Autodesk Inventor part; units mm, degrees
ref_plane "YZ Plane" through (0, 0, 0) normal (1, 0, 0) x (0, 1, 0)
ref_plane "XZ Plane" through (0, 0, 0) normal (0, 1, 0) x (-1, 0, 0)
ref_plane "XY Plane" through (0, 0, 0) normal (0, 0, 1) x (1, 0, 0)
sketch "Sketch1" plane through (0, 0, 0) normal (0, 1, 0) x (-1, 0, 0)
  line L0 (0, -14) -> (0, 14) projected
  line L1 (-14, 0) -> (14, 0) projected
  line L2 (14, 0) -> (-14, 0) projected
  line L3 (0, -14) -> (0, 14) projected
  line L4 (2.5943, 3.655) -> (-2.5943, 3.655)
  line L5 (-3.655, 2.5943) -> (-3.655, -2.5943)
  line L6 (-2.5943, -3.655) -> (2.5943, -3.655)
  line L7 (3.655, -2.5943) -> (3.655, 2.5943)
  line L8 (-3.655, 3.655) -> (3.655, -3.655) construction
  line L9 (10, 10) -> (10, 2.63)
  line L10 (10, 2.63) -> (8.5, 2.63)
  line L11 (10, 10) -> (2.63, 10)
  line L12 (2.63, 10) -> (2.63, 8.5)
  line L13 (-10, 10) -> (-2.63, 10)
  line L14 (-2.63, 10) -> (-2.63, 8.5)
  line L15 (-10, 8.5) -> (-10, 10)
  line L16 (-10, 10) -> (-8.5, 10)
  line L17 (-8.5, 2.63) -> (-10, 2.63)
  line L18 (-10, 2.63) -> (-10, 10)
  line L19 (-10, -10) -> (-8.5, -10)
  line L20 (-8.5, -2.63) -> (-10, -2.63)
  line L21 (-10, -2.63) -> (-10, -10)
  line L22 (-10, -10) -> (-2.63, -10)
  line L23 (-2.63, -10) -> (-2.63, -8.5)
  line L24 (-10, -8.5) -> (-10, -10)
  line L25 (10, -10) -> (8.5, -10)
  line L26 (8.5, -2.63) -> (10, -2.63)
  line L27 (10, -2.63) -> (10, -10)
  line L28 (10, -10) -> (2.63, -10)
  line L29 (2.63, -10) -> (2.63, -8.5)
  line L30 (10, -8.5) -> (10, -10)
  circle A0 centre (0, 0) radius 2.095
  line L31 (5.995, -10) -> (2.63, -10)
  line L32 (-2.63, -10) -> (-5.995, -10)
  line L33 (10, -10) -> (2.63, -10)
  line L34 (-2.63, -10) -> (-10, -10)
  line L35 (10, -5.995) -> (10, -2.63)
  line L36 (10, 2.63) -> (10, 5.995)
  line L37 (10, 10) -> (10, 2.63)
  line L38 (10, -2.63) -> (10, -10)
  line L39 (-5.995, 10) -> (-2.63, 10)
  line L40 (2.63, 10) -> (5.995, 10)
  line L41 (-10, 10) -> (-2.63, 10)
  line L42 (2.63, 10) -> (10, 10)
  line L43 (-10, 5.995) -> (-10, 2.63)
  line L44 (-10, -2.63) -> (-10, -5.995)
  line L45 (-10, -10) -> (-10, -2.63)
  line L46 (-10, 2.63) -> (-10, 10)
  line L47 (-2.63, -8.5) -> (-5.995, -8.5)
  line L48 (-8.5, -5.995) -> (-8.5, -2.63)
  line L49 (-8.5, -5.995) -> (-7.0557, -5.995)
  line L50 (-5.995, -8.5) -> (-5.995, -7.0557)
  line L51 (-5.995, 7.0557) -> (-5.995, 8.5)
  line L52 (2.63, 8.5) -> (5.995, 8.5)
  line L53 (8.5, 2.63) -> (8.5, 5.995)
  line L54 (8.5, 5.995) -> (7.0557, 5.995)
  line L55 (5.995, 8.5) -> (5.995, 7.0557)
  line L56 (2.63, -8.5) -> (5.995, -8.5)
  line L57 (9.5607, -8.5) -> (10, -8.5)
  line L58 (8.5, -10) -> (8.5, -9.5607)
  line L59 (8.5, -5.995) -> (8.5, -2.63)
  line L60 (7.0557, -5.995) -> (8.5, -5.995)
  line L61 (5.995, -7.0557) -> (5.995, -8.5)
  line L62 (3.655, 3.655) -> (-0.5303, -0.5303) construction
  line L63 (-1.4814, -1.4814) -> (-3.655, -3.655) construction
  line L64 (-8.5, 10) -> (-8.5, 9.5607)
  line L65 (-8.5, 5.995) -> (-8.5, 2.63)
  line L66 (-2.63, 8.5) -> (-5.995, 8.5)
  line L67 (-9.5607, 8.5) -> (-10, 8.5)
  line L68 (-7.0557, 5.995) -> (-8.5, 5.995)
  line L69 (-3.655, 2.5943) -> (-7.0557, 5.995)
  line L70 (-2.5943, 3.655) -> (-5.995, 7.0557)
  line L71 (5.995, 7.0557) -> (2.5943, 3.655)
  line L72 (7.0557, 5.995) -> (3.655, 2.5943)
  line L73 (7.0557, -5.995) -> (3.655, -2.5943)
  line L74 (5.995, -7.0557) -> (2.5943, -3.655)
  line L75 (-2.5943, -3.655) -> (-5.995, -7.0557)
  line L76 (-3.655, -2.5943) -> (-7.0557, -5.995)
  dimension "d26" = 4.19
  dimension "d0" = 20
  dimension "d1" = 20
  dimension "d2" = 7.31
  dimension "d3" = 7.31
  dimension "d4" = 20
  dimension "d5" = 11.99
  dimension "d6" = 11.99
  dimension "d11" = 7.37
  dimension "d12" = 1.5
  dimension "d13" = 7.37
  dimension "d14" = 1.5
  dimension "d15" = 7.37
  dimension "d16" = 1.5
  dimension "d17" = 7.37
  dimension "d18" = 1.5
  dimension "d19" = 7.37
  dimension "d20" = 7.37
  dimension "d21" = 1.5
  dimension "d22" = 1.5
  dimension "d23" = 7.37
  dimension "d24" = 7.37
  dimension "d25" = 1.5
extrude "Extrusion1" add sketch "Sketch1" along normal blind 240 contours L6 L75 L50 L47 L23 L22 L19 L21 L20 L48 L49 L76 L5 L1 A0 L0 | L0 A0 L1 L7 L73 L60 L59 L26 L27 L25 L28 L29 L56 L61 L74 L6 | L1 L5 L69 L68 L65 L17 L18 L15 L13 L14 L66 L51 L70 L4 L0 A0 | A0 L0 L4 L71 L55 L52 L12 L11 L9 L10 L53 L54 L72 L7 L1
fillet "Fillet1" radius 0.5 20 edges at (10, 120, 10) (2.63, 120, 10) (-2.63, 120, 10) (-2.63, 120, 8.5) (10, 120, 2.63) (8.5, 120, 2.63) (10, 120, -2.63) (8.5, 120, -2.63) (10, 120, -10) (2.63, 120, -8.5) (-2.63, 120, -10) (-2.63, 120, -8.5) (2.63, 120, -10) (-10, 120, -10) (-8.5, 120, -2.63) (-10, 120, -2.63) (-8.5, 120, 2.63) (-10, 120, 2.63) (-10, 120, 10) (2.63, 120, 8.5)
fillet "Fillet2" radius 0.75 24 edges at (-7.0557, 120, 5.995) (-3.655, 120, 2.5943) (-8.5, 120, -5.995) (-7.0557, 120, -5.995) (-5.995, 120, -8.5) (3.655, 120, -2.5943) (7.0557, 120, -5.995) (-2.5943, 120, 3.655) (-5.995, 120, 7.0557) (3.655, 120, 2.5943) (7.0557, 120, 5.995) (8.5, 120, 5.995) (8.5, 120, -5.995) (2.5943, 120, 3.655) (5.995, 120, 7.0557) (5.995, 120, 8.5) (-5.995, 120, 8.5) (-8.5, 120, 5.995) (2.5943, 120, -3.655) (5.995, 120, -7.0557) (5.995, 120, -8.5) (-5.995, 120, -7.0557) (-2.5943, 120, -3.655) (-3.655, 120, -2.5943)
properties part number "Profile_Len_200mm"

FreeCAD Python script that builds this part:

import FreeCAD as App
import Part
import Sketcher
from FreeCAD import Vector
Q = App.Units.Quantity


def edges_at(feature, points):
    """Names of the edges that pass closest to the given points."""
    edges = feature.Shape.Edges
    near = lambda p: min(range(len(edges)), key=lambda i: edges[i].distToShape(Part.Vertex(*p))[0])
    return sorted({f"Edge{near(p) + 1}" for p in points})

doc = App.newDocument("Part")
body = doc.addObject("PartDesign::Body", "Body")

sketch1 = body.newObject("Sketcher::SketchObject", "Sketch")
sketch1.AttachmentSupport = (doc.getObject("XZ_Plane"), [""])
sketch1.MapMode = "FlatFace"
sketch1.addGeometry([
    Part.LineSegment(Vector(2.6, -3.7, 0), Vector(-2.6, -3.7, 0)),
    Part.LineSegment(Vector(-2.6, -3.7, 0), Vector(-6, -7.1, 0)),
    Part.LineSegment(Vector(-6, -7.1, 0), Vector(-6, -8.5, 0)),
    Part.LineSegment(Vector(-6, -8.5, 0), Vector(-2.6, -8.5, 0)),
    Part.LineSegment(Vector(-2.6, -8.5, 0), Vector(-2.6, -10, 0)),
    Part.LineSegment(Vector(-2.6, -10, 0), Vector(-10, -10, 0)),
    Part.LineSegment(Vector(-10, -10, 0), Vector(-10, -2.6, 0)),
    Part.LineSegment(Vector(-10, -2.6, 0), Vector(-8.5, -2.6, 0)),
    Part.LineSegment(Vector(-8.5, -2.6, 0), Vector(-8.5, -6, 0)),
    Part.LineSegment(Vector(-8.5, -6, 0), Vector(-7.1, -6, 0)),
    Part.LineSegment(Vector(-7.1, -6, 0), Vector(-3.7, -2.6, 0)),
    Part.LineSegment(Vector(-3.7, -2.6, 0), Vector(-3.7, 2.6, 0)),
    Part.LineSegment(Vector(-3.7, 2.6, 0), Vector(-7.1, 6, 0)),
    Part.LineSegment(Vector(-7.1, 6, 0), Vector(-8.5, 6, 0)),
    Part.LineSegment(Vector(-8.5, 6, 0), Vector(-8.5, 2.6, 0)),
    Part.LineSegment(Vector(-8.5, 2.6, 0), Vector(-10, 2.6, 0)),
    Part.LineSegment(Vector(-10, 2.6, 0), Vector(-10, 10, 0)),
    Part.LineSegment(Vector(-10, 10, 0), Vector(-2.6, 10, 0)),
    Part.LineSegment(Vector(-2.6, 10, 0), Vector(-2.6, 8.5, 0)),
    Part.LineSegment(Vector(-2.6, 8.5, 0), Vector(-6, 8.5, 0)),
    Part.LineSegment(Vector(-6, 8.5, 0), Vector(-6, 7.1, 0)),
    Part.LineSegment(Vector(-6, 7.1, 0), Vector(-2.6, 3.7, 0)),
    Part.LineSegment(Vector(-2.6, 3.7, 0), Vector(2.6, 3.7, 0)),
    Part.LineSegment(Vector(2.6, 3.7, 0), Vector(6, 7.1, 0)),
    Part.LineSegment(Vector(6, 7.1, 0), Vector(6, 8.5, 0)),
    Part.LineSegment(Vector(6, 8.5, 0), Vector(2.6, 8.5, 0)),
    Part.LineSegment(Vector(2.6, 8.5, 0), Vector(2.6, 10, 0)),
    Part.LineSegment(Vector(2.6, 10, 0), Vector(10, 10, 0)),
    Part.LineSegment(Vector(10, 10, 0), Vector(10, 2.6, 0)),
    Part.LineSegment(Vector(10, 2.6, 0), Vector(8.5, 2.6, 0)),
    Part.LineSegment(Vector(8.5, 2.6, 0), Vector(8.5, 6, 0)),
    Part.LineSegment(Vector(8.5, 6, 0), Vector(7.1, 6, 0)),
    Part.LineSegment(Vector(7.1, 6, 0), Vector(3.7, 2.6, 0)),
    Part.LineSegment(Vector(3.7, 2.6, 0), Vector(3.7, -2.6, 0)),
    Part.LineSegment(Vector(3.7, -2.6, 0), Vector(7.1, -6, 0)),
    Part.LineSegment(Vector(7.1, -6, 0), Vector(8.5, -6, 0)),
    Part.LineSegment(Vector(8.5, -6, 0), Vector(8.5, -2.6, 0)),
    Part.LineSegment(Vector(8.5, -2.6, 0), Vector(10, -2.6, 0)),
    Part.LineSegment(Vector(10, -2.6, 0), Vector(10, -10, 0)),
    Part.LineSegment(Vector(10, -10, 0), Vector(2.6, -10, 0)),
    Part.LineSegment(Vector(2.6, -10, 0), Vector(2.6, -8.5, 0)),
    Part.LineSegment(Vector(2.6, -8.5, 0), Vector(6, -8.5, 0)),
    Part.LineSegment(Vector(6, -8.5, 0), Vector(6, -7.1, 0)),
    Part.LineSegment(Vector(6, -7.1, 0), Vector(2.6, -3.7, 0)),
    Part.Circle(Vector(0, 0, 0), Vector(0, 0, 1), 2.1),
], False)
sketch1.addConstraint([
    Sketcher.Constraint("Coincident", 0, 2, 1, 1),
    Sketcher.Constraint("Coincident", 1, 2, 2, 1),
    Sketcher.Constraint("Coincident", 2, 2, 3, 1),
    Sketcher.Constraint("Coincident", 3, 2, 4, 1),
    Sketcher.Constraint("Coincident", 4, 2, 5, 1),
    Sketcher.Constraint("Coincident", 5, 2, 6, 1),
    Sketcher.Constraint("Coincident", 6, 2, 7, 1),
    Sketcher.Constraint("Coincident", 7, 2, 8, 1),
    Sketcher.Constraint("Coincident", 8, 2, 9, 1),
    Sketcher.Constraint("Coincident", 9, 2, 10, 1),
    Sketcher.Constraint("Coincident", 10, 2, 11, 1),
    Sketcher.Constraint("Coincident", 11, 2, 12, 1),
    Sketcher.Constraint("Coincident", 12, 2, 13, 1),
    Sketcher.Constraint("Coincident", 13, 2, 14, 1),
    Sketcher.Constraint("Coincident", 14, 2, 15, 1),
    Sketcher.Constraint("Coincident", 15, 2, 16, 1),
    Sketcher.Constraint("Coincident", 16, 2, 17, 1),
    Sketcher.Constraint("Coincident", 17, 2, 18, 1),
    Sketcher.Constraint("Coincident", 18, 2, 19, 1),
    Sketcher.Constraint("Coincident", 19, 2, 20, 1),
    Sketcher.Constraint("Coincident", 20, 2, 21, 1),
    Sketcher.Constraint("Coincident", 21, 2, 22, 1),
    Sketcher.Constraint("Coincident", 22, 2, 23, 1),
    Sketcher.Constraint("Coincident", 23, 2, 24, 1),
    Sketcher.Constraint("Coincident", 24, 2, 25, 1),
    Sketcher.Constraint("Coincident", 25, 2, 26, 1),
    Sketcher.Constraint("Coincident", 26, 2, 27, 1),
    Sketcher.Constraint("Coincident", 27, 2, 28, 1),
    Sketcher.Constraint("Coincident", 28, 2, 29, 1),
    Sketcher.Constraint("Coincident", 29, 2, 30, 1),
    Sketcher.Constraint("Coincident", 30, 2, 31, 1),
    Sketcher.Constraint("Coincident", 31, 2, 32, 1),
    Sketcher.Constraint("Coincident", 32, 2, 33, 1),
    Sketcher.Constraint("Coincident", 33, 2, 34, 1),
    Sketcher.Constraint("Coincident", 34, 2, 35, 1),
    Sketcher.Constraint("Coincident", 35, 2, 36, 1),
    Sketcher.Constraint("Coincident", 36, 2, 37, 1),
    Sketcher.Constraint("Coincident", 37, 2, 38, 1),
    Sketcher.Constraint("Coincident", 38, 2, 39, 1),
    Sketcher.Constraint("Coincident", 39, 2, 40, 1),
    Sketcher.Constraint("Coincident", 40, 2, 41, 1),
    Sketcher.Constraint("Coincident", 41, 2, 42, 1),
    Sketcher.Constraint("Coincident", 42, 2, 43, 1),
    Sketcher.Constraint("Coincident", 43, 2, 0, 1),
    Sketcher.Constraint("Horizontal", 0),
    Sketcher.Constraint("Vertical", 2),
    Sketcher.Constraint("Horizontal", 3),
    Sketcher.Constraint("Vertical", 4),
    Sketcher.Constraint("Horizontal", 5),
    Sketcher.Constraint("Vertical", 6),
    Sketcher.Constraint("Horizontal", 7),
    Sketcher.Constraint("Vertical", 8),
    Sketcher.Constraint("Horizontal", 9),
    Sketcher.Constraint("Vertical", 11),
    Sketcher.Constraint("Horizontal", 13),
    Sketcher.Constraint("Vertical", 14),
    Sketcher.Constraint("Horizontal", 15),
    Sketcher.Constraint("Vertical", 16),
    Sketcher.Constraint("Horizontal", 17),
    Sketcher.Constraint("Vertical", 18),
    Sketcher.Constraint("Horizontal", 19),
    Sketcher.Constraint("Vertical", 20),
    Sketcher.Constraint("Horizontal", 22),
    Sketcher.Constraint("Vertical", 24),
    Sketcher.Constraint("Horizontal", 25),
    Sketcher.Constraint("Vertical", 26),
    Sketcher.Constraint("Horizontal", 27),
    Sketcher.Constraint("Vertical", 28),
    Sketcher.Constraint("Horizontal", 29),
    Sketcher.Constraint("Vertical", 30),
    Sketcher.Constraint("Horizontal", 31),
    Sketcher.Constraint("Vertical", 33),
    Sketcher.Constraint("Horizontal", 35),
    Sketcher.Constraint("Vertical", 36),
    Sketcher.Constraint("Horizontal", 37),
    Sketcher.Constraint("Vertical", 38),
    Sketcher.Constraint("Horizontal", 39),
    Sketcher.Constraint("Vertical", 40),
    Sketcher.Constraint("Horizontal", 41),
    Sketcher.Constraint("Vertical", 42),
    Sketcher.Constraint("Coincident", 44, 3, -1, 1),
    Sketcher.Constraint("Symmetric", 0, 2, 22, 2, -1, 1),
    Sketcher.Constraint("Symmetric", 1, 2, 23, 2, -1, 1),
    Sketcher.Constraint("Symmetric", 3, 2, 25, 2, -1, 1),
    Sketcher.Constraint("Symmetric", 5, 2, 27, 2, -1, 1),
    Sketcher.Constraint("Symmetric", 7, 2, 29, 2, -1, 1),
    Sketcher.Constraint("Symmetric", 9, 2, 31, 2, -1, 1),
    Sketcher.Constraint("Symmetric", 10, 2, 32, 2, -1, 1),
    Sketcher.Constraint("Symmetric", 12, 2, 34, 2, -1, 1),
    Sketcher.Constraint("Symmetric", 14, 2, 36, 2, -1, 1),
    Sketcher.Constraint("Symmetric", 16, 2, 38, 2, -1, 1),
    Sketcher.Constraint("Symmetric", 18, 2, 40, 2, -1, 1),
    Sketcher.Constraint("Symmetric", 20, 2, 42, 2, -1, 1),
    Sketcher.Constraint("Symmetric", 20, 2, 23, 2, -2),
    Sketcher.Constraint("Symmetric", 18, 2, 25, 2, -2),
    Sketcher.Constraint("Symmetric", 16, 2, 27, 2, -2),
    Sketcher.Constraint("Symmetric", 14, 2, 29, 2, -2),
    Sketcher.Constraint("Symmetric", 12, 2, 31, 2, -2),
    Sketcher.Constraint("Parallel", 1, 10),
    Sketcher.Constraint("Perpendicular", 10, 12),
    Sketcher.Constraint("Parallel", 12, 21),
    Sketcher.Constraint("Perpendicular", 32, 34),
    Sketcher.Constraint("Parallel", 34, 43),
    Sketcher.Constraint("Horizontal", 11, 2, 32, 2),
    Sketcher.Constraint("Equal", 35, 2),
    Sketcher.Constraint("Equal", 37, 4),
    Sketcher.Constraint("Equal", 39, 6),
    Sketcher.Constraint("Equal", 41, 8),
    Sketcher.Constraint("Equal", 22, 11),
    Sketcher.Constraint("Equal", 1, 10),
    Sketcher.Constraint("Diameter", 44, Q("4.19 mm")),
    Sketcher.Constraint("DistanceX", 7, 1, 7, 2, Q("1.5 mm")),
    Sketcher.Constraint("DistanceX", 5, 2, 5, 1, Q("7.37 mm")),
    Sketcher.Constraint("DistanceY", 4, 2, -1, 1, Q("10 mm")),
    Sketcher.Constraint("DistanceX", 3, 1, 3, 2, Q("3.365 mm")),
    Sketcher.Constraint("DistanceX", 1, 2, 10, 2, Q("2.34 mm")),
    Sketcher.Constraint("DistanceX", 0, 2, 0, 1, Q("5.1886 mm")),
])
pad1 = body.newObject("PartDesign::Pad", "Pad")
pad1.Profile = sketch1
pad1.Length = 240
pad1.Reversed = True
doc.recompute()

fillet = body.newObject("PartDesign::Fillet", "Fillet")
fillet.Base = (pad1, edges_at(pad1, [
    (10, 120, 10),
    (2.63, 120, 10),
    (-2.63, 120, 10),
    (-2.63, 120, 8.5),
    (10, 120, 2.63),
    (8.5, 120, 2.63),
    (10, 120, -2.63),
    (8.5, 120, -2.63),
    (10, 120, -10),
    (2.63, 120, -8.5),
    (-2.63, 120, -10),
    (-2.63, 120, -8.5),
    (2.63, 120, -10),
    (-10, 120, -10),
    (-8.5, 120, -2.63),
    (-10, 120, -2.63),
    (-8.5, 120, 2.63),
    (-10, 120, 2.63),
    (-10, 120, 10),
    (2.63, 120, 8.5),
]))
fillet.Radius = 0.5
doc.recompute()

fillet2 = body.newObject("PartDesign::Fillet", "Fillet001")
fillet2.Base = (fillet, edges_at(fillet, [
    (-7.056, 120, 5.995),
    (-3.655, 120, 2.594),
    (-8.5, 120, -5.995),
    (-7.056, 120, -5.995),
    (-5.995, 120, -8.5),
    (3.655, 120, -2.594),
    (7.056, 120, -5.995),
    (-2.594, 120, 3.655),
    (-5.995, 120, 7.056),
    (3.655, 120, 2.594),
    (7.056, 120, 5.995),
    (8.5, 120, 5.995),
    (8.5, 120, -5.995),
    (2.594, 120, 3.655),
    (5.995, 120, 7.056),
    (5.995, 120, 8.5),
    (-5.995, 120, 8.5),
    (-8.5, 120, 5.995),
    (2.594, 120, -3.655),
    (5.995, 120, -7.056),
    (5.995, 120, -8.5),
    (-5.995, 120, -7.056),
    (-2.594, 120, -3.655),
    (-3.655, 120, -2.594),
]))
fillet2.Radius = 0.75

doc.recompute()
